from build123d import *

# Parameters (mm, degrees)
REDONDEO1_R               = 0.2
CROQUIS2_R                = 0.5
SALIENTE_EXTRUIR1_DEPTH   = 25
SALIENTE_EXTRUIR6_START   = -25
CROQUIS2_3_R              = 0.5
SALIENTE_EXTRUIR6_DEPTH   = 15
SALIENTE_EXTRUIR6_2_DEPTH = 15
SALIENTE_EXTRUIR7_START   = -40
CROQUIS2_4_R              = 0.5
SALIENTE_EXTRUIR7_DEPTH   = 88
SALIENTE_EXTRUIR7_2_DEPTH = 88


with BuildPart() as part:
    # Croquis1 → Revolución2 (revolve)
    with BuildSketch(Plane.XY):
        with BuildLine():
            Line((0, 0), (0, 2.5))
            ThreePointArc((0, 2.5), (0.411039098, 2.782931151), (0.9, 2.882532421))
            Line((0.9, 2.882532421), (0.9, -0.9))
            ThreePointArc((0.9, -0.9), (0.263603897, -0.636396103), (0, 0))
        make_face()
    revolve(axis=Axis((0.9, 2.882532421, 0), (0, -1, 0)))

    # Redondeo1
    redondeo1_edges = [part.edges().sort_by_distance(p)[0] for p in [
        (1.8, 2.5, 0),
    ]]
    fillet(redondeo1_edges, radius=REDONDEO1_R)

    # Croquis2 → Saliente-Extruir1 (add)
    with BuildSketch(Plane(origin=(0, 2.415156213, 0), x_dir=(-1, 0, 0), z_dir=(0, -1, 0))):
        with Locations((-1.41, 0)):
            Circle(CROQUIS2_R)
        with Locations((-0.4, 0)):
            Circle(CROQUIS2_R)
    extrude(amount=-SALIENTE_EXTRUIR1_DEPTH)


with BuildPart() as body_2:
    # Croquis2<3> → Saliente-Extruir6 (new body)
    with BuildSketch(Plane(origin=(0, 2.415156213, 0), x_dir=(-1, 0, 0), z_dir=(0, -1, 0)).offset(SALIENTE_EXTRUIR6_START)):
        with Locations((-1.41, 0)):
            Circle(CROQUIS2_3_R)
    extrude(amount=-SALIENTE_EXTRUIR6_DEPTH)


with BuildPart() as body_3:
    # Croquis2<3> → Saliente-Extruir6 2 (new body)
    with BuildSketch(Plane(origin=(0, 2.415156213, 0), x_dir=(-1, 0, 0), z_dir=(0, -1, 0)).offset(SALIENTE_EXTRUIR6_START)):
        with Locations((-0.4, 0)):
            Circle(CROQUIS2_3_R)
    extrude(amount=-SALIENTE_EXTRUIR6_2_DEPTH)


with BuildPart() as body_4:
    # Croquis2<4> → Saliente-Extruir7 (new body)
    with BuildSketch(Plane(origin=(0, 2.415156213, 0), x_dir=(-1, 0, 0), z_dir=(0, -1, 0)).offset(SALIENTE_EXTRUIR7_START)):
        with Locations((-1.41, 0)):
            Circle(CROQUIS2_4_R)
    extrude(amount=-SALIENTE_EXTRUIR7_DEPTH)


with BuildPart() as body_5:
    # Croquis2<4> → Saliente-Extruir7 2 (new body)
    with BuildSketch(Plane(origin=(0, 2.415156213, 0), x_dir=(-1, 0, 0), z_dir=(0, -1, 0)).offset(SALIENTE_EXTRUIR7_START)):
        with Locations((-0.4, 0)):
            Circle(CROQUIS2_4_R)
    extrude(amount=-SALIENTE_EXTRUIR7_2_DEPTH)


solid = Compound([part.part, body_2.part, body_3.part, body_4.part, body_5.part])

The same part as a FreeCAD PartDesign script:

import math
import FreeCAD as App
import Part
import Sketcher

V = App.Vector
Q = App.Units.Quantity


def edges_at(feature, points):
    """Names of the edges that pass closest to the given points."""
    edges = feature.Shape.Edges
    near = lambda p: min(range(len(edges)), key=lambda i: edges[i].distToShape(Part.Vertex(*p))[0])
    return sorted({f"Edge{near(p) + 1}" for p in points})

doc = App.newDocument("Part")
body = doc.addObject("PartDesign::Body", "Body")

# Sketch on XY plane
sketch1 = body.newObject("Sketcher::SketchObject", "Sketch")
sketch1.AttachmentSupport = (doc.getObject("XY_Plane"), [""])
sketch1.MapMode = "FlatFace"
sketch1.addGeometry([
    Part.LineSegment(V(0, 2.5, 0), V(0, 0, 0)),
    Part.ArcOfCircle(Part.Circle(V(0.9, 0, 0), V(0, 0, 1), 0.9), math.radians(180), math.radians(270)),
    Part.LineSegment(V(0.9, -0.9, 0), V(0.9, 2.882532, 0)),
    Part.ArcOfCircle(Part.Circle(V(0.9, 1.632532, 0), V(0, 0, 1), 1.25), math.radians(90), math.radians(136.054481)),
], False)
sketch1.addGeometry(Part.LineSegment(V(0.9, 2.882532, 0), V(0.9, -0.9, 0)), True)  # axis
sketch1.addConstraint([
    Sketcher.Constraint("Tangent", 0, 2, 1, 1),
    Sketcher.Constraint("Coincident", 1, 2, 2, 1),
    Sketcher.Constraint("Coincident", 2, 2, 3, 1),
    Sketcher.Constraint("Coincident", 3, 2, 0, 1),
    Sketcher.Constraint("Vertical", 0),
    Sketcher.Constraint("Vertical", 2),
    Sketcher.Constraint("Vertical", 4),
    Sketcher.Constraint("Coincident", 0, 2, -1, 1),
    Sketcher.Constraint("Coincident", 4, 1, 2, 2),
    Sketcher.Constraint("Vertical", 1, 3, 3, 3),
    Sketcher.Constraint("Vertical", 3, 3, 1, 2),
    Sketcher.Constraint("Equal", 2, 4),
    Sketcher.Constraint("Radius", 1, Q("0.9 mm")),
    Sketcher.Constraint("Radius", 3, Q("1.25 mm")),
    Sketcher.Constraint("DistanceY", 0, 2, 0, 1, Q("2.5 mm")),
])
revolution = body.newObject("PartDesign::Revolution", "Revolution")
revolution.Profile = sketch1
revolution.ReferenceAxis = (sketch1, ["Axis0"])
revolution.Angle = 360
doc.recompute()

fillet = body.newObject("PartDesign::Fillet", "Fillet")
fillet.Base = (revolution, edges_at(revolution, [(1.8, 2.5, 0)]))
fillet.Radius = 0.2

# Sketch on XZ plane
sketch2 = body.newObject("Sketcher::SketchObject", "Sketch001")
sketch2.AttachmentSupport = (doc.getObject("XZ_Plane"), [""])
sketch2.MapMode = "FlatFace"
sketch2.AttachmentOffset = App.Placement(V(0, 0, -2.415156), App.Rotation())
sketch2.addGeometry([
    Part.Circle(V(1.41, 0, 0), V(0, 0, 1), 0.5),
    Part.Circle(V(0.4, 0, 0), V(0, 0, 1), 0.5),
], False)
sketch2.addConstraint([
    Sketcher.Constraint("Equal", 0, 1),
    Sketcher.Constraint("PointOnObject", 0, 3, -1),
    Sketcher.Constraint("PointOnObject", 1, 3, -1),
    Sketcher.Constraint("Diameter", 0, Q("1 mm")),
    Sketcher.Constraint("DistanceX", -1, 1, 1, 3, Q("0.4 mm")),
    Sketcher.Constraint("DistanceX", -1, 1, 0, 3, Q("1.41 mm")),
])
pad1 = body.newObject("PartDesign::Pad", "Pad")
pad1.Profile = sketch2
pad1.Length = 25
pad1.Reversed = True
body2 = doc.addObject("PartDesign::Body", "Body001")

# Sketch on XZ plane
sketch3 = body2.newObject("Sketcher::SketchObject", "Sketch002")
sketch3.AttachmentSupport = (doc.getObject("XZ_Plane001"), [""])
sketch3.MapMode = "FlatFace"
sketch3.AttachmentOffset = App.Placement(V(0, 0, -27.415156), App.Rotation())
sketch3.addGeometry(Part.Circle(V(1.41, 0, 0), V(0, 0, 1), 0.5), False)
sketch3.addConstraint([
    Sketcher.Constraint("PointOnObject", 0, 3, -1),
    Sketcher.Constraint("Diameter", 0, Q("1 mm")),
    Sketcher.Constraint("DistanceX", -1, 1, 0, 3, Q("1.41 mm")),
])
pad2 = body2.newObject("PartDesign::Pad", "Pad001")
pad2.Profile = sketch3
pad2.Length = 15
pad2.Reversed = True
body3 = doc.addObject("PartDesign::Body", "Body002")

# Sketch on XZ plane
sketch4 = body3.newObject("Sketcher::SketchObject", "Sketch003")
sketch4.AttachmentSupport = (doc.getObject("XZ_Plane002"), [""])
sketch4.MapMode = "FlatFace"
sketch4.AttachmentOffset = App.Placement(V(0, 0, -27.415156), App.Rotation())
sketch4.addGeometry(Part.Circle(V(0.4, 0, 0), V(0, 0, 1), 0.5), False)
sketch4.addConstraint([
    Sketcher.Constraint("PointOnObject", 0, 3, -1),
    Sketcher.Constraint("Diameter", 0, Q("1 mm")),
    Sketcher.Constraint("DistanceX", -1, 1, 0, 3, Q("0.4 mm")),
])
pad3 = body3.newObject("PartDesign::Pad", "Pad002")
pad3.Profile = sketch4
pad3.Length = 15
pad3.Reversed = True
body4 = doc.addObject("PartDesign::Body", "Body003")

# Sketch on XZ plane
sketch5 = body4.newObject("Sketcher::SketchObject", "Sketch004")
sketch5.AttachmentSupport = (doc.getObject("XZ_Plane003"), [""])
sketch5.MapMode = "FlatFace"
sketch5.AttachmentOffset = App.Placement(V(0, 0, -42.415156), App.Rotation())
sketch5.addGeometry(Part.Circle(V(1.41, 0, 0), V(0, 0, 1), 0.5), False)
sketch5.addConstraint([
    Sketcher.Constraint("PointOnObject", 0, 3, -1),
    Sketcher.Constraint("Diameter", 0, Q("1 mm")),
    Sketcher.Constraint("DistanceX", -1, 1, 0, 3, Q("1.41 mm")),
])
pad4 = body4.newObject("PartDesign::Pad", "Pad003")
pad4.Profile = sketch5
pad4.Length = 88
pad4.Reversed = True
body5 = doc.addObject("PartDesign::Body", "Body004")

# Sketch on XZ plane
sketch6 = body5.newObject("Sketcher::SketchObject", "Sketch005")
sketch6.AttachmentSupport = (doc.getObject("XZ_Plane004"), [""])
sketch6.MapMode = "FlatFace"
sketch6.AttachmentOffset = App.Placement(V(0, 0, -42.415156), App.Rotation())
sketch6.addGeometry(Part.Circle(V(0.4, 0, 0), V(0, 0, 1), 0.5), False)
sketch6.addConstraint([
    Sketcher.Constraint("PointOnObject", 0, 3, -1),
    Sketcher.Constraint("Diameter", 0, Q("1 mm")),
    Sketcher.Constraint("DistanceX", -1, 1, 0, 3, Q("0.4 mm")),
])
pad5 = body5.newObject("PartDesign::Pad", "Pad004")
pad5.Profile = sketch6
pad5.Length = 88
pad5.Reversed = True

doc.recompute()
